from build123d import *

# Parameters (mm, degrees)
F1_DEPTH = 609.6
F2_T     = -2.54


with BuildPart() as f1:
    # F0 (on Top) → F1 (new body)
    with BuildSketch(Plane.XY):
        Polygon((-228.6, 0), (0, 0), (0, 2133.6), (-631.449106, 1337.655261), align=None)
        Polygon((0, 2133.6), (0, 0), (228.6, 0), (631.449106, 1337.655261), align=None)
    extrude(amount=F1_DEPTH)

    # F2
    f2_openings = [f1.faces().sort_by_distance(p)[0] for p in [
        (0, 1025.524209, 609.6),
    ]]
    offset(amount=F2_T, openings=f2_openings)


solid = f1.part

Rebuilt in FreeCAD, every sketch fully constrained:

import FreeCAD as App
import Part
import Sketcher
from FreeCAD import Vector
Q = App.Units.Quantity


def faces_at(feature, points):
    """Names of the faces that lie closest to the given points."""
    faces = feature.Shape.Faces
    near = lambda p: min(range(len(faces)), key=lambda i: faces[i].distToShape(Part.Vertex(*p))[0])
    return sorted({f"Face{near(p) + 1}" for p in points})


def add_polygon(sketch, points):
    """Adds a closed chain of lines whose ends are joined by coincident constraints."""
    first, n = sketch.GeometryCount, len(points)
    for a, b in zip(points, points[1:] + points[:1]):
        sketch.addGeometry(Part.LineSegment(App.Vector(*a, 0), App.Vector(*b, 0)), False)
    for i in range(n):
        sketch.addConstraint(Sketcher.Constraint("Coincident", first + i, 2, first + (i + 1) % n, 1))

doc = App.newDocument("Part")
body = doc.addObject("PartDesign::Body", "Body")

sketch1 = body.newObject("Sketcher::SketchObject", "Sketch")
sketch1.AttachmentSupport = (doc.getObject("XY_Plane"), [""])
sketch1.MapMode = "FlatFace"
add_polygon(sketch1, [(-229, 0), (229, 0), (631, 1338), (0, 2134), (-631, 1338)])
sketch1.addConstraint(Sketcher.Constraint("Horizontal", 0))
sketch1.addConstraint(Sketcher.Constraint("Symmetric", 0, 2, 4, 2, -1, 1))
sketch1.addConstraint(Sketcher.Constraint("Symmetric", 1, 2, 3, 2, -2))
sketch1.addConstraint(Sketcher.Constraint("PointOnObject", 2, 2, -2))
sketch1.addConstraint(Sketcher.Constraint("DistanceX", 0, 1, 0, 2, Q("18 in")))
sketch1.addConstraint(Sketcher.Constraint("Distance", 1, Q("55 in")))
sketch1.addConstraint(Sketcher.Constraint("Distance", 2, Q("40 in")))
sketch1.addConstraint(Sketcher.Constraint("DistanceY", -1, 1, 2, 2, Q("84 in")))
pad1 = body.newObject("PartDesign::Pad", "Pad")
pad1.Profile = sketch1
pad1.Length = Q("24 in")
doc.recompute()

thickness = body.newObject("PartDesign::Thickness", "Thickness")
thickness.Base = (pad1, faces_at(pad1, [(0, 1066.8, 609.6)]))
thickness.Value = Q("0.1 in")
thickness.Reversed = True
thickness.Join = "Arc"

doc.recompute()
